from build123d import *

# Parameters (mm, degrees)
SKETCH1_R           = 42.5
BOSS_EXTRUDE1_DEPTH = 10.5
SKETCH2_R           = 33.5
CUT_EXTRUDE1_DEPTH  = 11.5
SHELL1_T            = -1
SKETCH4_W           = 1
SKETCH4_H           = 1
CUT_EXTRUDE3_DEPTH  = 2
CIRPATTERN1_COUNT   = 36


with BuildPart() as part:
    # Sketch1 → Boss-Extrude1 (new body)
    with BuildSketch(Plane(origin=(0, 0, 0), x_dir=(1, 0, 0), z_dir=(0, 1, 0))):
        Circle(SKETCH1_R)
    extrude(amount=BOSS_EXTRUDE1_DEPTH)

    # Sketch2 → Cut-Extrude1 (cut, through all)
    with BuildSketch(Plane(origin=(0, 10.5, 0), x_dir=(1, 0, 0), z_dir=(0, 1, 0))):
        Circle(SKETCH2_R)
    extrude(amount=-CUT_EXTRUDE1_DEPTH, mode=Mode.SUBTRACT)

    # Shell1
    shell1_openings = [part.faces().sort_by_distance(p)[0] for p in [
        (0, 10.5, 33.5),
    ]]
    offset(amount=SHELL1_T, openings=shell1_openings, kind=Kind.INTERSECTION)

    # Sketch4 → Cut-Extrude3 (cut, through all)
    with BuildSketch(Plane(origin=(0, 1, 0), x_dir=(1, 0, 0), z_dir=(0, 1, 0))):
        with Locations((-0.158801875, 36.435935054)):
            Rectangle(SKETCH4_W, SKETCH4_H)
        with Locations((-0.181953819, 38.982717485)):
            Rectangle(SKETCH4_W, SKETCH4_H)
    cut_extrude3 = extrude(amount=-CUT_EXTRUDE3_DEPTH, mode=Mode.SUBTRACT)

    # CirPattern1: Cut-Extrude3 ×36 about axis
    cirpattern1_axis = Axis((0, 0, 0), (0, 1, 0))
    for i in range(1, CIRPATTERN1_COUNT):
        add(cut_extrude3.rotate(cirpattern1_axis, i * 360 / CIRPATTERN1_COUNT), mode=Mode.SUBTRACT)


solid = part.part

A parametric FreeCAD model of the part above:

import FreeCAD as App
import Part
import Sketcher
from FreeCAD import Vector


def faces_at(feature, points):
    """Names of the faces that lie closest to the given points."""
    faces = feature.Shape.Faces
    near = lambda p: min(range(len(faces)), key=lambda i: faces[i].distToShape(Part.Vertex(*p))[0])
    return sorted({f"Face{near(p) + 1}" for p in points})

doc = App.newDocument("Part")
body = doc.addObject("PartDesign::Body", "Body")

sketch1 = body.newObject("Sketcher::SketchObject", "Sketch")
sketch1.AttachmentSupport = (doc.getObject("XZ_Plane"), [""])
sketch1.MapMode = "FlatFace"
sketch1.addGeometry(Part.Circle(Vector(0, 0, 0), Vector(0, 0, 1), 42.5), False)
sketch1.addConstraint(Sketcher.Constraint("Coincident", 0, 3, -1, 1))
sketch1.addConstraint(Sketcher.Constraint("Diameter", 0, 85.0))
pad1 = body.newObject("PartDesign::Pad", "Pad")
pad1.Profile = sketch1
pad1.Length = 10.5
pad1.Reversed = True

sketch2 = body.newObject("Sketcher::SketchObject", "Sketch001")
sketch2.AttachmentSupport = (doc.getObject("XZ_Plane"), [""])
sketch2.MapMode = "FlatFace"
sketch2.AttachmentOffset = App.Placement(Vector(0, 0, -10.5), App.Rotation())
sketch2.addGeometry(Part.Circle(Vector(0, 0, 0), Vector(0, 0, 1), 33.5), False)
sketch2.addConstraint(Sketcher.Constraint("Coincident", 0, 3, -1, 1))
sketch2.addConstraint(Sketcher.Constraint("Diameter", 0, 67.0))
pocket1 = body.newObject("PartDesign::Pocket", "Pocket")
pocket1.Profile = sketch2
pocket1.Type = "ThroughAll"
pocket1.Reversed = True
doc.recompute()

thickness = body.newObject("PartDesign::Thickness", "Thickness")
thickness.Base = (pocket1, faces_at(pocket1, [(-34, 10.5, 0)]))
thickness.Value = 1
thickness.Reversed = True
thickness.Join = "Intersection"

sketch3 = body.newObject("Sketcher::SketchObject", "Sketch002")
sketch3.AttachmentSupport = (doc.getObject("XZ_Plane"), [""])
sketch3.MapMode = "FlatFace"
sketch3.AttachmentOffset = App.Placement(Vector(0, 0, -1), App.Rotation())
sketch3.addGeometry(Part.LineSegment(Vector(-0.658802, -36.935935, 0), Vector(-0.658802, -35.935935, 0)), False)
sketch3.addGeometry(Part.LineSegment(Vector(-0.658802, -35.935935, 0), Vector(0.341198, -35.935935, 0)), False)
sketch3.addGeometry(Part.LineSegment(Vector(0.341198, -35.935935, 0), Vector(0.341198, -36.935935, 0)), False)
sketch3.addGeometry(Part.LineSegment(Vector(0.341198, -36.935935, 0), Vector(-0.658802, -36.935935, 0)), False)
sketch3.addGeometry(Part.LineSegment(Vector(-0.681954, -39.482717, 0), Vector(-0.681954, -38.482717, 0)), False)
sketch3.addGeometry(Part.LineSegment(Vector(-0.681954, -38.482717, 0), Vector(0.318046, -38.482717, 0)), False)
sketch3.addGeometry(Part.LineSegment(Vector(0.318046, -38.482717, 0), Vector(0.318046, -39.482717, 0)), False)
sketch3.addGeometry(Part.LineSegment(Vector(0.318046, -39.482717, 0), Vector(-0.681954, -39.482717, 0)), False)
sketch3.addConstraint(Sketcher.Constraint("Coincident", 0, 2, 1, 1))
sketch3.addConstraint(Sketcher.Constraint("Coincident", 1, 2, 2, 1))
sketch3.addConstraint(Sketcher.Constraint("Coincident", 2, 2, 3, 1))
sketch3.addConstraint(Sketcher.Constraint("Coincident", 3, 2, 0, 1))
sketch3.addConstraint(Sketcher.Constraint("Coincident", 4, 2, 5, 1))
sketch3.addConstraint(Sketcher.Constraint("Coincident", 5, 2, 6, 1))
sketch3.addConstraint(Sketcher.Constraint("Coincident", 6, 2, 7, 1))
sketch3.addConstraint(Sketcher.Constraint("Coincident", 7, 2, 4, 1))
sketch3.addConstraint(Sketcher.Constraint("Vertical", 0))
sketch3.addConstraint(Sketcher.Constraint("Horizontal", 1))
sketch3.addConstraint(Sketcher.Constraint("Vertical", 2))
sketch3.addConstraint(Sketcher.Constraint("Horizontal", 3))
sketch3.addConstraint(Sketcher.Constraint("Vertical", 4))
sketch3.addConstraint(Sketcher.Constraint("Horizontal", 5))
sketch3.addConstraint(Sketcher.Constraint("Vertical", 6))
sketch3.addConstraint(Sketcher.Constraint("Horizontal", 7))
sketch3.addConstraint(Sketcher.Constraint("Equal", 3, 5))
sketch3.addConstraint(Sketcher.Constraint("Equal", 7, 0))
sketch3.addConstraint(Sketcher.Constraint("Equal", 2, 4))
sketch3.addConstraint(Sketcher.Constraint("DistanceX", 1, 1, 1, 2, 1.0))
sketch3.addConstraint(Sketcher.Constraint("DistanceX", 0, 2, -1, 1, 0.658802))
sketch3.addConstraint(Sketcher.Constraint("DistanceX", 4, 2, 3, 2, 0.023152))
sketch3.addConstraint(Sketcher.Constraint("DistanceY", 0, 2, -1, 1, 35.935935))
sketch3.addConstraint(Sketcher.Constraint("DistanceY", 4, 2, -1, 1, 38.482717))
pocket2 = body.newObject("PartDesign::Pocket", "Pocket001")
pocket2.Profile = sketch3
pocket2.Type = "ThroughAll"
pocket2.Reversed = True
doc.recompute()

polarpattern = body.newObject("PartDesign::PolarPattern", "PolarPattern")
polarpattern.Originals = [pocket2]
polarpattern.Axis = (doc.getObject("Y_Axis"), [""])
polarpattern.Angle = 360
polarpattern.Occurrences = 36
body.Tip = polarpattern

doc.recompute()
